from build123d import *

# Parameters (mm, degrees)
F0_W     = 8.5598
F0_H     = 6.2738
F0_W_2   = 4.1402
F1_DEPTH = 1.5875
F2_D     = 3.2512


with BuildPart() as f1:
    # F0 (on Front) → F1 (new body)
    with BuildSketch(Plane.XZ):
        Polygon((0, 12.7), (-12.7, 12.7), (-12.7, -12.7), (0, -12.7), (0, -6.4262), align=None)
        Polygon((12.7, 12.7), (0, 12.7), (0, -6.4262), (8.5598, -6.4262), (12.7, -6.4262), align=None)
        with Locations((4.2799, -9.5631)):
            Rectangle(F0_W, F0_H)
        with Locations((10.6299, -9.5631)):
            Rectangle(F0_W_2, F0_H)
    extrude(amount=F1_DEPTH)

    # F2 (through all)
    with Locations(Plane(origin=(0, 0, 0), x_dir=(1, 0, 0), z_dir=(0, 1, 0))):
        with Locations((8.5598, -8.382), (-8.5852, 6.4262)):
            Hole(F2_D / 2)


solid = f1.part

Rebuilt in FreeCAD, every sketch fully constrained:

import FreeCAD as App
import Part
import Sketcher
from FreeCAD import Vector
Q = App.Units.Quantity


def add_polygon(sketch, points):
    """Adds a closed chain of lines whose ends are joined by coincident constraints."""
    first, n = sketch.GeometryCount, len(points)
    for a, b in zip(points, points[1:] + points[:1]):
        sketch.addGeometry(Part.LineSegment(App.Vector(*a, 0), App.Vector(*b, 0)), False)
    for i in range(n):
        sketch.addConstraint(Sketcher.Constraint("Coincident", first + i, 2, first + (i + 1) % n, 1))

doc = App.newDocument("Part")
params = doc.addObject("Spreadsheet::Sheet", "Params")
for row, (alias, value) in enumerate([
    ("sketch1_width", "1 in"),
    ("pad1_length", "0.0625 in"),
    ("sketch2_diameter", "0.128 in"),
    ("hole_diameter", "0.128 in"),
], start=1):
    params.set(f"A{row}", alias)
    params.set(f"B{row}", "=" + value)
    params.setAlias(f"B{row}", alias)

body = doc.addObject("PartDesign::Body", "Body")

# Sketch on XZ plane
sketch1 = body.newObject("Sketcher::SketchObject", "Sketch")
sketch1.AttachmentSupport = (doc.getObject("XZ_Plane"), [""])
sketch1.MapMode = "FlatFace"
add_polygon(sketch1, [(-12.7, 12.7), (-12.7, -12.7), (12.7, -12.7), (12.7, 12.7)])  # lines 0-3
sketch1.addConstraint([
    Sketcher.Constraint("Vertical", 0),
    Sketcher.Constraint("Horizontal", 1),
    Sketcher.Constraint("Vertical", 2),
    Sketcher.Constraint("Horizontal", 3),
    Sketcher.Constraint("Symmetric", 0, 2, 2, 2, -1, 1),
    Sketcher.Constraint("Equal", 3, 0),
    Sketcher.Constraint("DistanceX", 1, 1, 1, 2, Q("1 in")),
])
sketch1.setExpression("Constraints[10]", "Params.sketch1_width")
pad1 = body.newObject("PartDesign::Pad", "Pad")
pad1.Profile = sketch1
pad1.setExpression("Length", "Params.pad1_length")

# Sketch on XZ plane
sketch2 = body.newObject("Sketcher::SketchObject", "Sketch001")
sketch2.AttachmentSupport = (doc.getObject("XZ_Plane"), [""])
sketch2.MapMode = "FlatFace"
sketch2.addGeometry([
    Part.Circle(Vector(8.5598, 8.382, 0), Vector(0, 0, 1), 1.6256),
    Part.Circle(Vector(-8.5852, -6.4262, 0), Vector(0, 0, 1), 1.6256),
], False)
sketch2.addConstraint([
    Sketcher.Constraint("Equal", 0, 1),
    Sketcher.Constraint("Diameter", 0, Q("0.128 in")),
    Sketcher.Constraint("DistanceY", -1, 1, 0, 3, Q("0.33 in")),
    Sketcher.Constraint("DistanceX", -1, 1, 0, 3, Q("0.337 in")),
    Sketcher.Constraint("DistanceX", 1, 3, -1, 1, Q("0.338 in")),
    Sketcher.Constraint("DistanceY", 1, 3, -1, 1, Q("0.253 in")),
])
sketch2.setExpression("Constraints[1]", "Params.sketch2_diameter")
doc.recompute()
hole = body.newObject("PartDesign::Hole", "Hole")
hole.Profile = sketch2
hole.ThreadType = "None"
hole.setExpression("Diameter", "Params.hole_diameter")
hole.DepthType = "ThroughAll"
hole.Reversed = True

doc.recompute()
